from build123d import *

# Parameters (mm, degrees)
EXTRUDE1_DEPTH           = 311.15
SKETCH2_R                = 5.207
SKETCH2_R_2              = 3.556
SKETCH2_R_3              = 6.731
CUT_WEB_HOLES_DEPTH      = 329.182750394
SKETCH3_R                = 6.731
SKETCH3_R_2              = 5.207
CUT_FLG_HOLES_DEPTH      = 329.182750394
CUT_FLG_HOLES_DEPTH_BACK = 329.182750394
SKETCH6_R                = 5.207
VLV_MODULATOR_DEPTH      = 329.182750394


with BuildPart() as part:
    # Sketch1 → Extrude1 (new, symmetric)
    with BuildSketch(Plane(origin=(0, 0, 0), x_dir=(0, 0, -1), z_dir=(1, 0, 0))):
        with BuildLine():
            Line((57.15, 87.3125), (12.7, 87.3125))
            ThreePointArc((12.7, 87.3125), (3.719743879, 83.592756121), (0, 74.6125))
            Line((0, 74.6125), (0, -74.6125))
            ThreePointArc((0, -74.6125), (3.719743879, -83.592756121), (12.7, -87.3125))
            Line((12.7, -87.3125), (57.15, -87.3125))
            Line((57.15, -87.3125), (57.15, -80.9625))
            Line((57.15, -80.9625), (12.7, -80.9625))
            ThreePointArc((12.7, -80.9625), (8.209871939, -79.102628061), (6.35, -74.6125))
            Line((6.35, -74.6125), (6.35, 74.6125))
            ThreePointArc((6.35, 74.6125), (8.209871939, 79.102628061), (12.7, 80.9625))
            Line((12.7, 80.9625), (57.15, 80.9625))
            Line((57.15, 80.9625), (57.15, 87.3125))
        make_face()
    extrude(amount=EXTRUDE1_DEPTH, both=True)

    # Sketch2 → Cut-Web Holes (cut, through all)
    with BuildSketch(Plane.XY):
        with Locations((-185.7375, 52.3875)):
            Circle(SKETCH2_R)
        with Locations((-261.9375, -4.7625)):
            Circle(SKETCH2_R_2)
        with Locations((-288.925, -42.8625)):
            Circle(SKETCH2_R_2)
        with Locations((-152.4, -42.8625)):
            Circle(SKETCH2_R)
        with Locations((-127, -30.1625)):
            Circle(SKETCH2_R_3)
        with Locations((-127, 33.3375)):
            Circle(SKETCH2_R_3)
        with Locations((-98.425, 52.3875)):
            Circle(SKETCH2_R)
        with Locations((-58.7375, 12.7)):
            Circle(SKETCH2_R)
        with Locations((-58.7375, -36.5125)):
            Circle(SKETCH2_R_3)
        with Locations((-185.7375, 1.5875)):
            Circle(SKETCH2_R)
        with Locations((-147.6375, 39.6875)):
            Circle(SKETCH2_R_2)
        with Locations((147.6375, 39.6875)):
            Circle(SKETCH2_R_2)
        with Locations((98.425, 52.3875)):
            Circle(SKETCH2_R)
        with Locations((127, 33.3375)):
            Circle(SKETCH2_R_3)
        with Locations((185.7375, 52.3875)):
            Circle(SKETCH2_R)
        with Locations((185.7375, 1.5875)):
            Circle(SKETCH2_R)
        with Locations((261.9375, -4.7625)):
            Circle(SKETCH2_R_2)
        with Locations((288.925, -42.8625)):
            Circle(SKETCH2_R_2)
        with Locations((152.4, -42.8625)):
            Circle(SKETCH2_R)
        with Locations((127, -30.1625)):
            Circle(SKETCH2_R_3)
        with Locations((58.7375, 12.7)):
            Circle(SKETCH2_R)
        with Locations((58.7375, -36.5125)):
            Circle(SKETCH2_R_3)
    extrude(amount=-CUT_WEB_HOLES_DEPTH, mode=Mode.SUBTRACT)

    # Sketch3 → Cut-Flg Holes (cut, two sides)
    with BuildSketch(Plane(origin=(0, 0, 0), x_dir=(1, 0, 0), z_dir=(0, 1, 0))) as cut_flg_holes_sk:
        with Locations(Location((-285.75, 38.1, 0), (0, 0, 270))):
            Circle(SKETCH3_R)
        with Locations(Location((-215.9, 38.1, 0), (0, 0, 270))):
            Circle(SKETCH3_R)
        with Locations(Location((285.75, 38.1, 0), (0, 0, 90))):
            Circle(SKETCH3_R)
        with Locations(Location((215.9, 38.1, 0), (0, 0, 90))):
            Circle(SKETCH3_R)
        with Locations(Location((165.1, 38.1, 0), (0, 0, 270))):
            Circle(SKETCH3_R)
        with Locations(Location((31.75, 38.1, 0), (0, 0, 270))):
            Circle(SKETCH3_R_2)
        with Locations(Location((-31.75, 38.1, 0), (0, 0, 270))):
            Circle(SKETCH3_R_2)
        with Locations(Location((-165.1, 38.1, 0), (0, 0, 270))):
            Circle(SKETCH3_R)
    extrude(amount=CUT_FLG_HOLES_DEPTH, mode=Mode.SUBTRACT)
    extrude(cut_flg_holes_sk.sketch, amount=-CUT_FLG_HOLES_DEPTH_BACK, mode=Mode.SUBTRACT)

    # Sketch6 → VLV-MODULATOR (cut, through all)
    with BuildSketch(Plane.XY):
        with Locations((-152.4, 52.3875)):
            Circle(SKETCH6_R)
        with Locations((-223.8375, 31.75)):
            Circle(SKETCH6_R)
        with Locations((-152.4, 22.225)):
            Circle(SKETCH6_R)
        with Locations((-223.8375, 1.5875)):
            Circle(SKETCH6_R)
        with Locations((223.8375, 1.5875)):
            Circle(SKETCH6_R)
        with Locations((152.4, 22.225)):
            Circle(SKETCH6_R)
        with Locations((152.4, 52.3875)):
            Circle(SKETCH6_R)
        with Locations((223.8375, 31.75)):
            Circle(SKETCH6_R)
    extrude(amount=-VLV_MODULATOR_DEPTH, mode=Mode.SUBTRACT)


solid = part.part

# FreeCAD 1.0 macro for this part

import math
import FreeCAD as App
import Part
import Sketcher
from FreeCAD import Vector
Q = App.Units.Quantity

doc = App.newDocument("Part")
body = doc.addObject("PartDesign::Body", "Body")

# Sketch on YZ plane
sketch1 = body.newObject("Sketcher::SketchObject", "Sketch")
sketch1.AttachmentSupport = (doc.getObject("YZ_Plane"), [""])
sketch1.MapMode = "FlatFace"
sketch1.addGeometry([
    Part.LineSegment(Vector(87, -57, 0), Vector(87, -13, 0)),  # 0
    Part.ArcOfCircle(Part.Circle(Vector(75, -13, 0), Vector(0, 0, 1), 13), math.radians(0), math.radians(90)),  # 1
    Part.LineSegment(Vector(75, 0, 0), Vector(-75, 0, 0)),  # 2
    Part.ArcOfCircle(Part.Circle(Vector(-75, -13, 0), Vector(0, 0, 1), 13), math.radians(90), math.radians(180)),  # 3
    Part.LineSegment(Vector(-87, -13, 0), Vector(-87, -57, 0)),  # 4
    Part.LineSegment(Vector(-87, -57, 0), Vector(-81, -57, 0)),  # 5
    Part.LineSegment(Vector(-81, -57, 0), Vector(-81, -13, 0)),  # 6
    Part.ArcOfCircle(Part.Circle(Vector(-75, -13, 0), Vector(0, 0, 1), 6), math.radians(90), math.radians(180)),  # 7
    Part.LineSegment(Vector(-75, -6, 0), Vector(75, -6, 0)),  # 8
    Part.ArcOfCircle(Part.Circle(Vector(75, -13, 0), Vector(0, 0, 1), 6), math.radians(0), math.radians(90)),  # 9
    Part.LineSegment(Vector(81, -13, 0), Vector(81, -57, 0)),  # 10
    Part.LineSegment(Vector(81, -57, 0), Vector(87, -57, 0)),  # 11
], False)
sketch1.addConstraint([
    Sketcher.Constraint("Tangent", 0, 2, 1, 1),
    Sketcher.Constraint("Tangent", 1, 2, 2, 1),
    Sketcher.Constraint("Tangent", 2, 2, 3, 1),
    Sketcher.Constraint("Tangent", 3, 2, 4, 1),
    Sketcher.Constraint("Coincident", 4, 2, 5, 1),
    Sketcher.Constraint("Coincident", 5, 2, 6, 1),
    Sketcher.Constraint("Tangent", 6, 2, 7, 2),
    Sketcher.Constraint("Tangent", 7, 1, 8, 1),
    Sketcher.Constraint("Tangent", 8, 2, 9, 2),
    Sketcher.Constraint("Tangent", 9, 1, 10, 1),
    Sketcher.Constraint("Coincident", 10, 2, 11, 1),
    Sketcher.Constraint("Coincident", 11, 2, 0, 1),
    Sketcher.Constraint("Vertical", 0),
    Sketcher.Constraint("Horizontal", 2),
    Sketcher.Constraint("Vertical", 4),
    Sketcher.Constraint("Horizontal", 5),
    Sketcher.Constraint("Vertical", 6),
    Sketcher.Constraint("Horizontal", 8),
    Sketcher.Constraint("Vertical", 10),
    Sketcher.Constraint("Horizontal", 11),
    Sketcher.Constraint("Coincident", 7, 3, 3, 3),
    Sketcher.Constraint("Coincident", 9, 3, 1, 3),
    Sketcher.Constraint("Equal", 1, 3),
    Sketcher.Constraint("Symmetric", 1, 2, 2, 2, -1, 1),
    Sketcher.Constraint("Horizontal", 5, 2, 10, 2),
    Sketcher.Constraint("Radius", 1, Q("0.5 in")),
    Sketcher.Constraint("Radius", 7, Q("0.25 in")),
    Sketcher.Constraint("DistanceY", 10, 2, 8, 2, Q("2 in")),
    Sketcher.Constraint("DistanceX", 2, 2, 2, 1, Q("5.875 in")),
])
pad1 = body.newObject("PartDesign::Pad", "Pad")
pad1.Profile = sketch1
pad1.Length = Q("24.5 in")
pad1.Midplane = True

# Sketch on XY plane
sketch2 = body.newObject("Sketcher::SketchObject", "Sketch001")
sketch2.AttachmentSupport = (doc.getObject("XY_Plane"), [""])
sketch2.MapMode = "FlatFace"
sketch2.addGeometry([
    Part.Circle(Vector(-185.7, 52.4, 0), Vector(0, 0, 1), 5.2),  # 0
    Part.Circle(Vector(-261.9, -4.8, 0), Vector(0, 0, 1), 3.6),  # 1
    Part.Circle(Vector(-288.9, -42.9, 0), Vector(0, 0, 1), 3.6),  # 2
    Part.Circle(Vector(-152.4, -42.9, 0), Vector(0, 0, 1), 5.2),  # 3
    Part.Circle(Vector(-127, -30.2, 0), Vector(0, 0, 1), 6.7),  # 4
    Part.Circle(Vector(-127, 33.3, 0), Vector(0, 0, 1), 6.7),  # 5
    Part.Circle(Vector(-98.4, 52.4, 0), Vector(0, 0, 1), 5.2),  # 6
    Part.Circle(Vector(-58.7, 12.7, 0), Vector(0, 0, 1), 5.2),  # 7
    Part.Circle(Vector(-58.7, -36.5, 0), Vector(0, 0, 1), 6.7),  # 8
    Part.Circle(Vector(-185.7, 1.6, 0), Vector(0, 0, 1), 5.2),  # 9
    Part.Circle(Vector(-147.6, 39.7, 0), Vector(0, 0, 1), 3.6),  # 10
    Part.Circle(Vector(147.6, 39.7, 0), Vector(0, 0, 1), 3.6),  # 11
    Part.Circle(Vector(98.4, 52.4, 0), Vector(0, 0, 1), 5.2),  # 12
    Part.Circle(Vector(127, 33.3, 0), Vector(0, 0, 1), 6.7),  # 13
    Part.Circle(Vector(185.7, 52.4, 0), Vector(0, 0, 1), 5.2),  # 14
    Part.Circle(Vector(185.7, 1.6, 0), Vector(0, 0, 1), 5.2),  # 15
    Part.Circle(Vector(261.9, -4.8, 0), Vector(0, 0, 1), 3.6),  # 16
    Part.Circle(Vector(288.9, -42.9, 0), Vector(0, 0, 1), 3.6),  # 17
    Part.Circle(Vector(152.4, -42.9, 0), Vector(0, 0, 1), 5.2),  # 18
    Part.Circle(Vector(127, -30.2, 0), Vector(0, 0, 1), 6.7),  # 19
    Part.Circle(Vector(58.7, 12.7, 0), Vector(0, 0, 1), 5.2),  # 20
    Part.Circle(Vector(58.7, -36.5, 0), Vector(0, 0, 1), 6.7),  # 21
], False)
sketch2.addConstraint([
    Sketcher.Constraint("Equal", 1, 2),
    Sketcher.Constraint("Equal", 0, 3),
    Sketcher.Constraint("Equal", 4, 5),
    Sketcher.Constraint("Equal", 3, 6),
    Sketcher.Constraint("Equal", 6, 7),
    Sketcher.Constraint("Equal", 5, 8),
    Sketcher.Constraint("Equal", 7, 9),
    Sketcher.Constraint("Equal", 2, 10),
    Sketcher.Constraint("Equal", 10, 11),
    Sketcher.Constraint("Equal", 9, 12),
    Sketcher.Constraint("Equal", 8, 13),
    Sketcher.Constraint("Equal", 12, 14),
    Sketcher.Constraint("Equal", 14, 15),
    Sketcher.Constraint("Equal", 11, 16),
    Sketcher.Constraint("Equal", 16, 17),
    Sketcher.Constraint("Equal", 15, 18),
    Sketcher.Constraint("Equal", 13, 19),
    Sketcher.Constraint("Equal", 18, 20),
    Sketcher.Constraint("Equal", 19, 21),
    Sketcher.Constraint("Symmetric", 10, 3, 11, 3, -2),
    Sketcher.Constraint("Symmetric", 6, 3, 12, 3, -2),
    Sketcher.Constraint("Symmetric", 5, 3, 13, 3, -2),
    Sketcher.Constraint("Symmetric", 0, 3, 14, 3, -2),
    Sketcher.Constraint("Symmetric", 9, 3, 15, 3, -2),
    Sketcher.Constraint("Symmetric", 1, 3, 16, 3, -2),
    Sketcher.Constraint("Symmetric", 2, 3, 17, 3, -2),
    Sketcher.Constraint("Symmetric", 3, 3, 18, 3, -2),
    Sketcher.Constraint("Symmetric", 4, 3, 19, 3, -2),
    Sketcher.Constraint("Symmetric", 7, 3, 20, 3, -2),
    Sketcher.Constraint("Symmetric", 8, 3, 21, 3, -2),
    Sketcher.Constraint("Horizontal", 2, 3, 3, 3),
    Sketcher.Constraint("Horizontal", 0, 3, 6, 3),
    Sketcher.Constraint("Vertical", 4, 3, 5, 3),
    Sketcher.Constraint("Vertical", 7, 3, 8, 3),
    Sketcher.Constraint("Vertical", 0, 3, 9, 3),
    Sketcher.Constraint("Diameter", 0, Q("0.41 in")),
    Sketcher.Constraint("Diameter", 1, Q("0.28 in")),
    Sketcher.Constraint("Diameter", 4, Q("0.53 in")),
    Sketcher.Constraint("DistanceX", 3, 3, -1, 1, Q("6 in")),
    Sketcher.Constraint("DistanceX", 4, 3, -1, 1, Q("5 in")),
    Sketcher.Constraint("DistanceX", 1, 3, 0, 3, Q("3 in")),
    Sketcher.Constraint("DistanceY", 4, 3, 1, 3, Q("1 in")),
    Sketcher.Constraint("DistanceY", 3, 3, 5, 3, Q("3 in")),
    Sketcher.Constraint("DistanceX", 0, 3, 7, 3, Q("5 in")),
    Sketcher.Constraint("DistanceY", 9, 3, 0, 3, Q("2 in")),
    Sketcher.Constraint("DistanceY", 8, 3, 11, 3, Q("3 in")),
    Sketcher.Constraint("DistanceY", -1, 1, 7, 3, Q("0.5 in")),
    Sketcher.Constraint("DistanceY", 2, 3, 1, 3, Q("1.5 in")),
    Sketcher.Constraint("DistanceY", 8, 3, 6, 3, Q("3.5 in")),
    Sketcher.Constraint("DistanceX", 0, 3, 10, 3, Q("1.5 in")),
    Sketcher.Constraint("DistanceY", 1, 3, 0, 3, Q("2.25 in")),
    Sketcher.Constraint("DistanceX", 6, 3, 12, 3, Q("7.75 in")),
    Sketcher.Constraint("DistanceX", 0, 3, -1, 1, Q("7.3125 in")),
    Sketcher.Constraint("DistanceY", -1, 1, 0, 3, Q("2.0625 in")),
    Sketcher.Constraint("DistanceX", 2, 3, -1, 1, Q("11.375 in")),
])
pocket1 = body.newObject("PartDesign::Pocket", "Pocket")
pocket1.Profile = sketch2
pocket1.Type = "ThroughAll"

# Sketch on XZ plane
sketch3 = body.newObject("Sketcher::SketchObject", "Sketch002")
sketch3.AttachmentSupport = (doc.getObject("XZ_Plane"), [""])
sketch3.MapMode = "FlatFace"
sketch3.addGeometry([
    Part.Circle(Vector(-286, -38, 0), Vector(0, 0, 1), 7),  # 0
    Part.Circle(Vector(-216, -38, 0), Vector(0, 0, 1), 7),  # 1
    Part.Circle(Vector(286, -38, 0), Vector(0, 0, 1), 7),  # 2
    Part.Circle(Vector(216, -38, 0), Vector(0, 0, 1), 7),  # 3
    Part.Circle(Vector(165, -38, 0), Vector(0, 0, 1), 7),  # 4
    Part.Circle(Vector(32, -38, 0), Vector(0, 0, 1), 5),  # 5
    Part.Circle(Vector(-32, -38, 0), Vector(0, 0, 1), 5),  # 6
    Part.Circle(Vector(-165, -38, 0), Vector(0, 0, 1), 7),  # 7
], False)
sketch3.addConstraint([
    Sketcher.Constraint("Equal", 0, 1),
    Sketcher.Constraint("Equal", 1, 2),
    Sketcher.Constraint("Equal", 2, 3),
    Sketcher.Constraint("Equal", 3, 4),
    Sketcher.Constraint("Equal", 5, 6),
    Sketcher.Constraint("Equal", 4, 7),
    Sketcher.Constraint("Symmetric", 0, 3, 2, 3, -2),
    Sketcher.Constraint("Symmetric", 1, 3, 3, 3, -2),
    Sketcher.Constraint("Symmetric", 5, 3, 6, 3, -2),
    Sketcher.Constraint("Symmetric", 4, 3, 7, 3, -2),
    Sketcher.Constraint("Horizontal", 0, 3, 1, 3),
    Sketcher.Constraint("Horizontal", 3, 3, 4, 3),
    Sketcher.Constraint("Horizontal", 4, 3, 5, 3),
    Sketcher.Constraint("Diameter", 0, Q("0.53 in")),
    Sketcher.Constraint("Diameter", 5, Q("0.41 in")),
    Sketcher.Constraint("DistanceX", 1, 3, 3, 3, Q("17 in")),
    Sketcher.Constraint("DistanceX", 4, 3, 3, 3, Q("2 in")),
    Sketcher.Constraint("DistanceX", 5, 3, 2, 3, Q("10 in")),
    Sketcher.Constraint("DistanceY", 0, 3, -1, 1, Q("1.5 in")),
    Sketcher.Constraint("DistanceX", 0, 3, 2, 3, Q("22.5 in")),
])
pocket2 = body.newObject("PartDesign::Pocket", "Pocket001")
pocket2.Profile = sketch3
pocket2.Type = "ThroughAll"
pocket2.Midplane = True

# Sketch on XY plane
sketch4 = body.newObject("Sketcher::SketchObject", "Sketch003")
sketch4.AttachmentSupport = (doc.getObject("XY_Plane"), [""])
sketch4.MapMode = "FlatFace"
sketch4.addGeometry([
    Part.Circle(Vector(-152, 52, 0), Vector(0, 0, 1), 5),  # 0
    Part.Circle(Vector(-224, 32, 0), Vector(0, 0, 1), 5),  # 1
    Part.Circle(Vector(-152, 22, 0), Vector(0, 0, 1), 5),  # 2
    Part.Circle(Vector(-224, 2, 0), Vector(0, 0, 1), 5),  # 3
    Part.Circle(Vector(224, 2, 0), Vector(0, 0, 1), 5),  # 4
    Part.Circle(Vector(152, 22, 0), Vector(0, 0, 1), 5),  # 5
    Part.Circle(Vector(152, 52, 0), Vector(0, 0, 1), 5),  # 6
    Part.Circle(Vector(224, 32, 0), Vector(0, 0, 1), 5),  # 7
], False)
sketch4.addConstraint([
    Sketcher.Constraint("Equal", 0, 1),
    Sketcher.Constraint("Equal", 1, 2),
    Sketcher.Constraint("Equal", 2, 3),
    Sketcher.Constraint("Equal", 3, 4),
    Sketcher.Constraint("Equal", 4, 5),
    Sketcher.Constraint("Equal", 5, 6),
    Sketcher.Constraint("Equal", 6, 7),
    Sketcher.Constraint("Symmetric", 3, 3, 4, 3, -2),
    Sketcher.Constraint("Symmetric", 2, 3, 5, 3, -2),
    Sketcher.Constraint("Symmetric", 0, 3, 6, 3, -2),
    Sketcher.Constraint("Symmetric", 1, 3, 7, 3, -2),
    Sketcher.Constraint("Vertical", 0, 3, 2, 3),
    Sketcher.Constraint("Vertical", 1, 3, 3, 3),
    Sketcher.Constraint("Diameter", 0, Q("0.41 in")),
    Sketcher.Constraint("DistanceX", 0, 3, -1, 1, Q("6 in")),
    Sketcher.Constraint("DistanceY", 3, 3, 0, 3, Q("2 in")),
    Sketcher.Constraint("DistanceY", -1, 1, 1, 3, Q("1.25 in")),
    Sketcher.Constraint("DistanceY", -1, 1, 0, 3, Q("2.0625 in")),
    Sketcher.Constraint("DistanceX", 1, 3, -1, 1, Q("8.8125 in")),
    Sketcher.Constraint("DistanceY", -1, 1, 2, 3, Q("0.875 in")),
])
pocket3 = body.newObject("PartDesign::Pocket", "Pocket002")
pocket3.Profile = sketch4
pocket3.Type = "ThroughAll"

doc.recompute()
